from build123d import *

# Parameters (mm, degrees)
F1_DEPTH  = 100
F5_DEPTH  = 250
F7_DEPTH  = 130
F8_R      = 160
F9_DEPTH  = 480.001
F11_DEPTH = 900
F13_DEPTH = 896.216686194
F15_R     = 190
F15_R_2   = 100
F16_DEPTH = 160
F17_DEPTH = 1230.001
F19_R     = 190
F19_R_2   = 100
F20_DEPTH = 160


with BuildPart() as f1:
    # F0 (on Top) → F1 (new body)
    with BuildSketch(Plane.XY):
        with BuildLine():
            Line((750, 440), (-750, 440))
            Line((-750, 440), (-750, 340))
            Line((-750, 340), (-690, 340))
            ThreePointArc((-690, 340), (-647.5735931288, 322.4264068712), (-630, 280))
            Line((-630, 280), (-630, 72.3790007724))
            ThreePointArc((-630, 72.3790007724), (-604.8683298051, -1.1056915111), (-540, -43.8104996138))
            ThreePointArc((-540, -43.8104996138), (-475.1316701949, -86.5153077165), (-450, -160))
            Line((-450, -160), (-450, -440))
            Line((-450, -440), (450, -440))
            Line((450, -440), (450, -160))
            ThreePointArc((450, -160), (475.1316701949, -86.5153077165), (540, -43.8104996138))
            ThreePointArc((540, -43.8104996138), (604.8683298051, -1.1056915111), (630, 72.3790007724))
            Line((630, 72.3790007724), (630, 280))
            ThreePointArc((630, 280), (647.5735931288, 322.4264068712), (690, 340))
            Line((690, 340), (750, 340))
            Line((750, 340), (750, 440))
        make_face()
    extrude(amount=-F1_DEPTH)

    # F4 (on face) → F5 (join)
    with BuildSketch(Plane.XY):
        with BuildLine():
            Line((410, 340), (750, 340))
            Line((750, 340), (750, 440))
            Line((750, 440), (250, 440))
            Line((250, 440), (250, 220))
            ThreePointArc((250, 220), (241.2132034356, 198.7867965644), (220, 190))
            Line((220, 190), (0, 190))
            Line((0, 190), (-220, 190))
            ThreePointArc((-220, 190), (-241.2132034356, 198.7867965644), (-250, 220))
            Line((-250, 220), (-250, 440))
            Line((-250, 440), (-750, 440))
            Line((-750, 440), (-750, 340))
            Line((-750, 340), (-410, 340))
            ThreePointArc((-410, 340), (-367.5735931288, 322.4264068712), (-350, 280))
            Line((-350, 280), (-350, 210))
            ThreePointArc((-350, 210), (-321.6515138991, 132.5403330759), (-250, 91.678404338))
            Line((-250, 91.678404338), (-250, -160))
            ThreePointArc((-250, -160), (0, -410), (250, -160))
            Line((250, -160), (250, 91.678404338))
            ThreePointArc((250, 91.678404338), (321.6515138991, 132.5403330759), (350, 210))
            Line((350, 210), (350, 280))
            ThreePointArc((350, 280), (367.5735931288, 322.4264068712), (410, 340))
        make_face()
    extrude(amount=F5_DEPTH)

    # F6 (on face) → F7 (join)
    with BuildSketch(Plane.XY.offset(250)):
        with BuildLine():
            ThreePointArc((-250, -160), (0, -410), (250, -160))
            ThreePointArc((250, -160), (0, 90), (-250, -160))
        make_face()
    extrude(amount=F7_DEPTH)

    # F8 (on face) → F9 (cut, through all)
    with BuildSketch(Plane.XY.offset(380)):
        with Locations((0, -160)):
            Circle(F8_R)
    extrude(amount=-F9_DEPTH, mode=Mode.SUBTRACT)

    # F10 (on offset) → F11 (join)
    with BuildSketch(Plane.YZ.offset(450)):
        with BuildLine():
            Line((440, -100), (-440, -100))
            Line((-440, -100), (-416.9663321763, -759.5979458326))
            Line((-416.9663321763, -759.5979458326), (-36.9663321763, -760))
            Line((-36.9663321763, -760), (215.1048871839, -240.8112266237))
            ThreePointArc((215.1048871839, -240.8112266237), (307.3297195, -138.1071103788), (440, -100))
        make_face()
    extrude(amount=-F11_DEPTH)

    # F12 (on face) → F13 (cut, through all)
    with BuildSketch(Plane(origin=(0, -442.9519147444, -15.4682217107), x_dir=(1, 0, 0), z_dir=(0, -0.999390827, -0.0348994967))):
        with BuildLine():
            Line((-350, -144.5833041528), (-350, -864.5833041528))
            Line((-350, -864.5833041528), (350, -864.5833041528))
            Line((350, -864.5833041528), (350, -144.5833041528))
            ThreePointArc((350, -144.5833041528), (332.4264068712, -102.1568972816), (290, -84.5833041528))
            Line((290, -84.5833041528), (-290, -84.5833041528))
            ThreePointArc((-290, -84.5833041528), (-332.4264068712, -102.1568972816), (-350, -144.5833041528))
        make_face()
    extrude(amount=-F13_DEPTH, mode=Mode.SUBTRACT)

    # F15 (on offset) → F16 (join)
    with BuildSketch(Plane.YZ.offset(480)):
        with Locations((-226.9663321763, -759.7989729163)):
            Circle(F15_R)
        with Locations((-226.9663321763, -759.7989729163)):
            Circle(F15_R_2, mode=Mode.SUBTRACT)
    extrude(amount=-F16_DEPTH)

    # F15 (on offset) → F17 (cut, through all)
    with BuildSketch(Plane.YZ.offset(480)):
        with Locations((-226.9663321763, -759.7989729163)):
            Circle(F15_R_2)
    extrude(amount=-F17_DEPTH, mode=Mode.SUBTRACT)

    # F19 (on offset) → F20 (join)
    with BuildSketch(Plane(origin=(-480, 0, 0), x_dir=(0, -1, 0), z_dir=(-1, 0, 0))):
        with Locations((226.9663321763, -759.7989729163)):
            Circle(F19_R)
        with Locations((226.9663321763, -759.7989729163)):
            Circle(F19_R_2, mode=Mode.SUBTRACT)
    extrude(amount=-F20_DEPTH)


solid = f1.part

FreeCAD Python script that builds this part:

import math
import FreeCAD as App
import Part
import Sketcher
from FreeCAD import Vector
Q = App.Units.Quantity

doc = App.newDocument("Part")
body = doc.addObject("PartDesign::Body", "Body")

# Sketch on XY plane
sketch1 = body.newObject("Sketcher::SketchObject", "Sketch")
sketch1.AttachmentSupport = (doc.getObject("XY_Plane"), [""])
sketch1.MapMode = "FlatFace"
sketch1.addGeometry(Part.LineSegment(Vector(750, 440, 0), Vector(-750, 440, 0)), False)
sketch1.addGeometry(Part.LineSegment(Vector(-750, 440, 0), Vector(-750, 340, 0)), False)
sketch1.addGeometry(Part.LineSegment(Vector(-750, 340, 0), Vector(-690, 340, 0)), False)
sketch1.addGeometry(Part.ArcOfCircle(Part.Circle(Vector(-690, 280, 0), Vector(0, 0, 1), 60), math.radians(0), math.radians(90)), False)
sketch1.addGeometry(Part.LineSegment(Vector(-630, 280, 0), Vector(-630, 72, 0)), False)
sketch1.addGeometry(Part.ArcOfCircle(Part.Circle(Vector(-510, 72, 0), Vector(0, 0, 1), 120), math.radians(180), math.radians(256)), False)
sketch1.addGeometry(Part.ArcOfCircle(Part.Circle(Vector(-570, -160, 0), Vector(0, 0, 1), 120), math.radians(0), math.radians(76)), False)
sketch1.addGeometry(Part.LineSegment(Vector(-450, -160, 0), Vector(-450, -440, 0)), False)
sketch1.addGeometry(Part.LineSegment(Vector(-450, -440, 0), Vector(450, -440, 0)), False)
sketch1.addGeometry(Part.LineSegment(Vector(450, -440, 0), Vector(450, -160, 0)), False)
sketch1.addGeometry(Part.ArcOfCircle(Part.Circle(Vector(570, -160, 0), Vector(0, 0, 1), 120), math.radians(104), math.radians(180)), False)
sketch1.addGeometry(Part.ArcOfCircle(Part.Circle(Vector(510, 72, 0), Vector(0, 0, 1), 120), math.radians(-76), math.radians(0)), False)
sketch1.addGeometry(Part.LineSegment(Vector(630, 72, 0), Vector(630, 280, 0)), False)
sketch1.addGeometry(Part.ArcOfCircle(Part.Circle(Vector(690, 280, 0), Vector(0, 0, 1), 60), math.radians(90), math.radians(180)), False)
sketch1.addGeometry(Part.LineSegment(Vector(690, 340, 0), Vector(750, 340, 0)), False)
sketch1.addGeometry(Part.LineSegment(Vector(750, 340, 0), Vector(750, 440, 0)), False)
sketch1.addConstraint(Sketcher.Constraint("Coincident", 0, 2, 1, 1))
sketch1.addConstraint(Sketcher.Constraint("Coincident", 1, 2, 2, 1))
sketch1.addConstraint(Sketcher.Constraint("Tangent", 2, 2, 3, 2))
sketch1.addConstraint(Sketcher.Constraint("Tangent", 3, 1, 4, 1))
sketch1.addConstraint(Sketcher.Constraint("Tangent", 4, 2, 5, 1))
sketch1.addConstraint(Sketcher.Constraint("Tangent", 5, 2, 6, 2))
sketch1.addConstraint(Sketcher.Constraint("Tangent", 6, 1, 7, 1))
sketch1.addConstraint(Sketcher.Constraint("Coincident", 7, 2, 8, 1))
sketch1.addConstraint(Sketcher.Constraint("Coincident", 8, 2, 9, 1))
sketch1.addConstraint(Sketcher.Constraint("Tangent", 9, 2, 10, 2))
sketch1.addConstraint(Sketcher.Constraint("Tangent", 10, 1, 11, 1))
sketch1.addConstraint(Sketcher.Constraint("Tangent", 11, 2, 12, 1))
sketch1.addConstraint(Sketcher.Constraint("Tangent", 12, 2, 13, 2))
sketch1.addConstraint(Sketcher.Constraint("Tangent", 13, 1, 14, 1))
sketch1.addConstraint(Sketcher.Constraint("Coincident", 14, 2, 15, 1))
sketch1.addConstraint(Sketcher.Constraint("Coincident", 15, 2, 0, 1))
sketch1.addConstraint(Sketcher.Constraint("Horizontal", 0))
sketch1.addConstraint(Sketcher.Constraint("Vertical", 1))
sketch1.addConstraint(Sketcher.Constraint("Horizontal", 2))
sketch1.addConstraint(Sketcher.Constraint("Vertical", 4))
sketch1.addConstraint(Sketcher.Constraint("Vertical", 7))
sketch1.addConstraint(Sketcher.Constraint("Horizontal", 8))
sketch1.addConstraint(Sketcher.Constraint("Vertical", 9))
sketch1.addConstraint(Sketcher.Constraint("Vertical", 12))
sketch1.addConstraint(Sketcher.Constraint("Horizontal", 14))
sketch1.addConstraint(Sketcher.Constraint("Vertical", 15))
sketch1.addConstraint(Sketcher.Constraint("Equal", 5, 6))
sketch1.addConstraint(Sketcher.Constraint("Equal", 6, 10))
sketch1.addConstraint(Sketcher.Constraint("Equal", 10, 11))
sketch1.addConstraint(Sketcher.Constraint("Equal", 3, 13))
sketch1.addConstraint(Sketcher.Constraint("Symmetric", 6, 3, 10, 3, -2))
sketch1.addConstraint(Sketcher.Constraint("Symmetric", 3, 3, 13, 3, -2))
sketch1.addConstraint(Sketcher.Constraint("Equal", 2, 14))
sketch1.addConstraint(Sketcher.Constraint("Radius", 3, Q("60 mm")))
sketch1.addConstraint(Sketcher.Constraint("Radius", 5, Q("120 mm")))
sketch1.addConstraint(Sketcher.Constraint("DistanceX", 0, 2, 0, 1, Q("1500 mm")))
sketch1.addConstraint(Sketcher.Constraint("DistanceX", 2, 1, 2, 2, Q("60 mm")))
sketch1.addConstraint(Sketcher.Constraint("DistanceX", 8, 1, 8, 2, Q("900 mm")))
sketch1.addConstraint(Sketcher.Constraint("DistanceY", 1, 2, 1, 1, Q("100 mm")))
sketch1.addConstraint(Sketcher.Constraint("DistanceY", 7, 2, 7, 1, Q("280 mm")))
sketch1.addConstraint(Sketcher.Constraint("DistanceY", -1, 1, 3, 3, Q("280 mm")))
sketch1.addConstraint(Sketcher.Constraint("DistanceY", 6, 3, -1, 1, Q("160 mm")))
pad1 = body.newObject("PartDesign::Pad", "Pad")
pad1.Profile = sketch1
pad1.Length = 100
pad1.Reversed = True

# Sketch on XY plane
sketch2 = body.newObject("Sketcher::SketchObject", "Sketch001")
sketch2.AttachmentSupport = (doc.getObject("XY_Plane"), [""])
sketch2.MapMode = "FlatFace"
sketch2.addGeometry(Part.LineSegment(Vector(410, 340, 0), Vector(750, 340, 0)), False)
sketch2.addGeometry(Part.LineSegment(Vector(750, 340, 0), Vector(750, 440, 0)), False)
sketch2.addGeometry(Part.LineSegment(Vector(750, 440, 0), Vector(250, 440, 0)), False)
sketch2.addGeometry(Part.LineSegment(Vector(250, 440, 0), Vector(250, 220, 0)), False)
sketch2.addGeometry(Part.ArcOfCircle(Part.Circle(Vector(220, 220, 0), Vector(0, 0, 1), 30), math.radians(-90), math.radians(0)), False)
sketch2.addGeometry(Part.LineSegment(Vector(220, 190, 0), Vector(-220, 190, 0)), False)
sketch2.addGeometry(Part.ArcOfCircle(Part.Circle(Vector(-220, 220, 0), Vector(0, 0, 1), 30), math.radians(180), math.radians(270)), False)
sketch2.addGeometry(Part.LineSegment(Vector(-250, 220, 0), Vector(-250, 440, 0)), False)
sketch2.addGeometry(Part.LineSegment(Vector(-250, 440, 0), Vector(-750, 440, 0)), False)
sketch2.addGeometry(Part.LineSegment(Vector(-750, 440, 0), Vector(-750, 340, 0)), False)
sketch2.addGeometry(Part.LineSegment(Vector(-750, 340, 0), Vector(-410, 340, 0)), False)
sketch2.addGeometry(Part.ArcOfCircle(Part.Circle(Vector(-410, 280, 0), Vector(0, 0, 1), 60), math.radians(0), math.radians(90)), False)
sketch2.addGeometry(Part.LineSegment(Vector(-350, 280, 0), Vector(-350, 210, 0)), False)
sketch2.addGeometry(Part.ArcOfCircle(Part.Circle(Vector(-230, 210, 0), Vector(0, 0, 1), 120), math.radians(180), math.radians(260)), False)
sketch2.addGeometry(Part.LineSegment(Vector(-250, 92, 0), Vector(-250, -160, 0)), False)
sketch2.addGeometry(Part.ArcOfCircle(Part.Circle(Vector(0, -160, 0), Vector(0, 0, 1), 250), math.radians(180), math.radians(360)), False)
sketch2.addGeometry(Part.LineSegment(Vector(250, -160, 0), Vector(250, 92, 0)), False)
sketch2.addGeometry(Part.ArcOfCircle(Part.Circle(Vector(230, 210, 0), Vector(0, 0, 1), 120), math.radians(-80), math.radians(0)), False)
sketch2.addGeometry(Part.LineSegment(Vector(350, 210, 0), Vector(350, 280, 0)), False)
sketch2.addGeometry(Part.ArcOfCircle(Part.Circle(Vector(410, 280, 0), Vector(0, 0, 1), 60), math.radians(90), math.radians(180)), False)
sketch2.addConstraint(Sketcher.Constraint("Coincident", 0, 2, 1, 1))
sketch2.addConstraint(Sketcher.Constraint("Coincident", 1, 2, 2, 1))
sketch2.addConstraint(Sketcher.Constraint("Coincident", 2, 2, 3, 1))
sketch2.addConstraint(Sketcher.Constraint("Tangent", 3, 2, 4, 2))
sketch2.addConstraint(Sketcher.Constraint("Tangent", 4, 1, 5, 1))
sketch2.addConstraint(Sketcher.Constraint("Tangent", 5, 2, 6, 2))
sketch2.addConstraint(Sketcher.Constraint("Tangent", 6, 1, 7, 1))
sketch2.addConstraint(Sketcher.Constraint("Coincident", 7, 2, 8, 1))
sketch2.addConstraint(Sketcher.Constraint("Coincident", 8, 2, 9, 1))
sketch2.addConstraint(Sketcher.Constraint("Coincident", 9, 2, 10, 1))
sketch2.addConstraint(Sketcher.Constraint("Tangent", 10, 2, 11, 2))
sketch2.addConstraint(Sketcher.Constraint("Tangent", 11, 1, 12, 1))
sketch2.addConstraint(Sketcher.Constraint("Tangent", 12, 2, 13, 1))
sketch2.addConstraint(Sketcher.Constraint("Coincident", 13, 2, 14, 1))
sketch2.addConstraint(Sketcher.Constraint("Tangent", 14, 2, 15, 1))
sketch2.addConstraint(Sketcher.Constraint("Tangent", 15, 2, 16, 1))
sketch2.addConstraint(Sketcher.Constraint("Coincident", 16, 2, 17, 1))
sketch2.addConstraint(Sketcher.Constraint("Tangent", 17, 2, 18, 1))
sketch2.addConstraint(Sketcher.Constraint("Tangent", 18, 2, 19, 2))
sketch2.addConstraint(Sketcher.Constraint("Tangent", 19, 1, 0, 1))
sketch2.addConstraint(Sketcher.Constraint("Horizontal", 0))
sketch2.addConstraint(Sketcher.Constraint("Vertical", 1))
sketch2.addConstraint(Sketcher.Constraint("Horizontal", 2))
sketch2.addConstraint(Sketcher.Constraint("Vertical", 3))
sketch2.addConstraint(Sketcher.Constraint("Horizontal", 5))
sketch2.addConstraint(Sketcher.Constraint("Vertical", 7))
sketch2.addConstraint(Sketcher.Constraint("Horizontal", 8))
sketch2.addConstraint(Sketcher.Constraint("Vertical", 9))
sketch2.addConstraint(Sketcher.Constraint("Horizontal", 10))
sketch2.addConstraint(Sketcher.Constraint("Vertical", 12))
sketch2.addConstraint(Sketcher.Constraint("Vertical", 14))
sketch2.addConstraint(Sketcher.Constraint("Vertical", 16))
sketch2.addConstraint(Sketcher.Constraint("Vertical", 18))
sketch2.addConstraint(Sketcher.Constraint("Equal", 4, 6))
sketch2.addConstraint(Sketcher.Constraint("Equal", 13, 17))
sketch2.addConstraint(Sketcher.Constraint("Equal", 11, 19))
sketch2.addConstraint(Sketcher.Constraint("Symmetric", 13, 3, 17, 3, -2))
sketch2.addConstraint(Sketcher.Constraint("Symmetric", 2, 2, 7, 2, -2))
sketch2.addConstraint(Sketcher.Constraint("Symmetric", 0, 2, 9, 2, -2))
sketch2.addConstraint(Sketcher.Constraint("PointOnObject", 15, 3, -2))
sketch2.addConstraint(Sketcher.Constraint("Vertical", 7, 2, 13, 2))
sketch2.addConstraint(Sketcher.Constraint("Radius", 4, Q("30 mm")))
sketch2.addConstraint(Sketcher.Constraint("Radius", 11, Q("60 mm")))
sketch2.addConstraint(Sketcher.Constraint("Radius", 13, Q("120 mm")))
sketch2.addConstraint(Sketcher.Constraint("Radius", 15, Q("250 mm")))
sketch2.addConstraint(Sketcher.Constraint("DistanceX", 0, 1, 0, 2, Q("340 mm")))
sketch2.addConstraint(Sketcher.Constraint("DistanceX", 2, 2, 2, 1, Q("500 mm")))
sketch2.addConstraint(Sketcher.Constraint("DistanceY", 1, 1, 1, 2, Q("100 mm")))
sketch2.addConstraint(Sketcher.Constraint("DistanceY", 3, 2, 3, 1, Q("220 mm")))
sketch2.addConstraint(Sketcher.Constraint("DistanceY", 12, 2, 12, 1, Q("70 mm")))
sketch2.addConstraint(Sketcher.Constraint("DistanceY", -1, 1, 4, 3, Q("220 mm")))
sketch2.addConstraint(Sketcher.Constraint("DistanceY", 15, 3, -1, 1, Q("160 mm")))
pad2 = body.newObject("PartDesign::Pad", "Pad001")
pad2.Profile = sketch2
pad2.Length = 250

# Sketch on XY plane
sketch3 = body.newObject("Sketcher::SketchObject", "Sketch002")
sketch3.AttachmentSupport = (doc.getObject("XY_Plane"), [""])
sketch3.MapMode = "FlatFace"
sketch3.AttachmentOffset = App.Placement(Vector(0, 0, 250), App.Rotation())
sketch3.addGeometry(Part.Circle(Vector(0, -160, 0), Vector(0, 0, 1), 250), False)
sketch3.addConstraint(Sketcher.Constraint("PointOnObject", 0, 3, -2))
sketch3.addConstraint(Sketcher.Constraint("Diameter", 0, Q("500 mm")))
sketch3.addConstraint(Sketcher.Constraint("DistanceY", 0, 3, -1, 1, Q("160 mm")))
pad3 = body.newObject("PartDesign::Pad", "Pad002")
pad3.Profile = sketch3
pad3.Length = 130

# Sketch on XY plane
sketch4 = body.newObject("Sketcher::SketchObject", "Sketch003")
sketch4.AttachmentSupport = (doc.getObject("XY_Plane"), [""])
sketch4.MapMode = "FlatFace"
sketch4.AttachmentOffset = App.Placement(Vector(0, 0, 380), App.Rotation())
sketch4.addGeometry(Part.Circle(Vector(0, -160, 0), Vector(0, 0, 1), 160), False)
sketch4.addConstraint(Sketcher.Constraint("PointOnObject", 0, 3, -2))
sketch4.addConstraint(Sketcher.Constraint("Diameter", 0, Q("320 mm")))
sketch4.addConstraint(Sketcher.Constraint("DistanceY", 0, 3, -1, 1, Q("160 mm")))
pocket1 = body.newObject("PartDesign::Pocket", "Pocket")
pocket1.Profile = sketch4
pocket1.Type = "ThroughAll"

# Sketch on YZ plane
sketch5 = body.newObject("Sketcher::SketchObject", "Sketch004")
sketch5.AttachmentSupport = (doc.getObject("YZ_Plane"), [""])
sketch5.MapMode = "FlatFace"
sketch5.AttachmentOffset = App.Placement(Vector(0, 0, 450), App.Rotation())
sketch5.addGeometry(Part.LineSegment(Vector(440, -100, 0), Vector(-440, -100, 0)), False)
sketch5.addGeometry(Part.LineSegment(Vector(-440, -100, 0), Vector(-417, -760, 0)), False)
sketch5.addGeometry(Part.LineSegment(Vector(-417, -760, 0), Vector(-37, -760, 0)), False)
sketch5.addGeometry(Part.LineSegment(Vector(-37, -760, 0), Vector(215, -241, 0)), False)
sketch5.addGeometry(Part.ArcOfCircle(Part.Circle(Vector(440, -350, 0), Vector(0, 0, 1), 250), math.radians(90), math.radians(154)), False)
sketch5.addConstraint(Sketcher.Constraint("Coincident", 0, 2, 1, 1))
sketch5.addConstraint(Sketcher.Constraint("Coincident", 1, 2, 2, 1))
sketch5.addConstraint(Sketcher.Constraint("Coincident", 2, 2, 3, 1))
sketch5.addConstraint(Sketcher.Constraint("Tangent", 3, 2, 4, 2))
sketch5.addConstraint(Sketcher.Constraint("Tangent", 4, 1, 0, 1))
sketch5.addConstraint(Sketcher.Constraint("Horizontal", 0))
sketch5.addConstraint(Sketcher.Constraint("Radius", 4, Q("250 mm")))
sketch5.addConstraint(Sketcher.Constraint("DistanceX", 0, 2, 0, 1, Q("880 mm")))
sketch5.addConstraint(Sketcher.Constraint("Angle", 1, Q("-88 deg")))
sketch5.addConstraint(Sketcher.Constraint("Distance", 1, Q("660 mm")))
sketch5.addConstraint(Sketcher.Constraint("DistanceX", -1, 1, 4, 3, Q("440 mm")))
sketch5.addConstraint(Sketcher.Constraint("DistanceY", 4, 3, -1, 1, Q("350 mm")))
sketch5.addConstraint(Sketcher.Constraint("DistanceY", 2, 2, -1, 1, Q("760 mm")))
sketch5.addConstraint(Sketcher.Constraint("DistanceX", 1, 2, 2, 2, Q("380 mm")))
pad4 = body.newObject("PartDesign::Pad", "Pad003")
pad4.Profile = sketch5
pad4.Length = 900
pad4.Reversed = True

# Sketch on an angled plane
sketch6 = body.newObject("Sketcher::SketchObject", "Sketch005")
sketch6.Placement = App.Placement(Vector(0, -442.951915, -15.468222), App.Rotation(Vector(1, 0, 0), Vector(0, -0.034899497, 0.999390827), Vector(0, -0.999390827, -0.034899497), "ZXY"))
sketch6.addGeometry(Part.LineSegment(Vector(-350, -145, 0), Vector(-350, -865, 0)), False)
sketch6.addGeometry(Part.LineSegment(Vector(-350, -865, 0), Vector(350, -865, 0)), False)
sketch6.addGeometry(Part.LineSegment(Vector(350, -865, 0), Vector(350, -145, 0)), False)
sketch6.addGeometry(Part.ArcOfCircle(Part.Circle(Vector(290, -145, 0), Vector(0, 0, 1), 60), math.radians(0), math.radians(90)), False)
sketch6.addGeometry(Part.LineSegment(Vector(290, -85, 0), Vector(-290, -85, 0)), False)
sketch6.addGeometry(Part.ArcOfCircle(Part.Circle(Vector(-290, -145, 0), Vector(0, 0, 1), 60), math.radians(90), math.radians(180)), False)
sketch6.addConstraint(Sketcher.Constraint("Coincident", 0, 2, 1, 1))
sketch6.addConstraint(Sketcher.Constraint("Coincident", 1, 2, 2, 1))
sketch6.addConstraint(Sketcher.Constraint("Tangent", 2, 2, 3, 1))
sketch6.addConstraint(Sketcher.Constraint("Tangent", 3, 2, 4, 1))
sketch6.addConstraint(Sketcher.Constraint("Tangent", 4, 2, 5, 1))
sketch6.addConstraint(Sketcher.Constraint("Tangent", 5, 2, 0, 1))
sketch6.addConstraint(Sketcher.Constraint("Vertical", 0))
sketch6.addConstraint(Sketcher.Constraint("Horizontal", 1))
sketch6.addConstraint(Sketcher.Constraint("Vertical", 2))
sketch6.addConstraint(Sketcher.Constraint("Horizontal", 4))
sketch6.addConstraint(Sketcher.Constraint("Equal", 3, 5))
sketch6.addConstraint(Sketcher.Constraint("Radius", 3, Q("60 mm")))
sketch6.addConstraint(Sketcher.Constraint("DistanceX", 1, 1, 1, 2, Q("700 mm")))
sketch6.addConstraint(Sketcher.Constraint("DistanceY", 0, 2, 0, 1, Q("720 mm")))
sketch6.addConstraint(Sketcher.Constraint("DistanceX", -1, 1, 3, 3, Q("290 mm")))
sketch6.addConstraint(Sketcher.Constraint("DistanceY", 3, 3, -1, 1, Q("144.583304 mm")))
pocket2 = body.newObject("PartDesign::Pocket", "Pocket001")
pocket2.Profile = sketch6
pocket2.Type = "ThroughAll"

# Sketch on YZ plane
sketch7 = body.newObject("Sketcher::SketchObject", "Sketch006")
sketch7.AttachmentSupport = (doc.getObject("YZ_Plane"), [""])
sketch7.MapMode = "FlatFace"
sketch7.AttachmentOffset = App.Placement(Vector(0, 0, 480), App.Rotation())
sketch7.addGeometry(Part.Circle(Vector(-227, -760, 0), Vector(0, 0, 1), 190), False)
sketch7.addGeometry(Part.Circle(Vector(-227, -760, 0), Vector(0, 0, 1), 100), False)
sketch7.addConstraint(Sketcher.Constraint("Coincident", 1, 3, 0, 3))
sketch7.addConstraint(Sketcher.Constraint("Diameter", 0, Q("380 mm")))
sketch7.addConstraint(Sketcher.Constraint("Diameter", 1, Q("200 mm")))
sketch7.addConstraint(Sketcher.Constraint("DistanceX", 0, 3, -1, 1, Q("226.966332 mm")))
sketch7.addConstraint(Sketcher.Constraint("DistanceY", 0, 3, -1, 1, Q("759.798973 mm")))
pad5 = body.newObject("PartDesign::Pad", "Pad004")
pad5.Profile = sketch7
pad5.Length = 160
pad5.Reversed = True

# Sketch on YZ plane
sketch8 = body.newObject("Sketcher::SketchObject", "Sketch007")
sketch8.AttachmentSupport = (doc.getObject("YZ_Plane"), [""])
sketch8.MapMode = "FlatFace"
sketch8.AttachmentOffset = App.Placement(Vector(0, 0, 480), App.Rotation())
sketch8.addGeometry(Part.Circle(Vector(-227, -760, 0), Vector(0, 0, 1), 100), False)
sketch8.addConstraint(Sketcher.Constraint("Diameter", 0, Q("200 mm")))
sketch8.addConstraint(Sketcher.Constraint("DistanceX", 0, 3, -1, 1, Q("226.966332 mm")))
sketch8.addConstraint(Sketcher.Constraint("DistanceY", 0, 3, -1, 1, Q("759.798973 mm")))
pocket3 = body.newObject("PartDesign::Pocket", "Pocket002")
pocket3.Profile = sketch8
pocket3.Type = "ThroughAll"

# Sketch on YZ plane
sketch9 = body.newObject("Sketcher::SketchObject", "Sketch008")
sketch9.AttachmentSupport = (doc.getObject("YZ_Plane"), [""])
sketch9.MapMode = "FlatFace"
sketch9.AttachmentOffset = App.Placement(Vector(0, 0, -480), App.Rotation())
sketch9.addGeometry(Part.Circle(Vector(-227, -760, 0), Vector(0, 0, 1), 190), False)
sketch9.addGeometry(Part.Circle(Vector(-227, -760, 0), Vector(0, 0, 1), 100), False)
sketch9.addConstraint(Sketcher.Constraint("Coincident", 1, 3, 0, 3))
sketch9.addConstraint(Sketcher.Constraint("Diameter", 0, Q("380 mm")))
sketch9.addConstraint(Sketcher.Constraint("Diameter", 1, Q("200 mm")))
sketch9.addConstraint(Sketcher.Constraint("DistanceX", 0, 3, -1, 1, Q("226.966332 mm")))
sketch9.addConstraint(Sketcher.Constraint("DistanceY", 0, 3, -1, 1, Q("759.798973 mm")))
pad6 = body.newObject("PartDesign::Pad", "Pad005")
pad6.Profile = sketch9
pad6.Length = 160

doc.recompute()
